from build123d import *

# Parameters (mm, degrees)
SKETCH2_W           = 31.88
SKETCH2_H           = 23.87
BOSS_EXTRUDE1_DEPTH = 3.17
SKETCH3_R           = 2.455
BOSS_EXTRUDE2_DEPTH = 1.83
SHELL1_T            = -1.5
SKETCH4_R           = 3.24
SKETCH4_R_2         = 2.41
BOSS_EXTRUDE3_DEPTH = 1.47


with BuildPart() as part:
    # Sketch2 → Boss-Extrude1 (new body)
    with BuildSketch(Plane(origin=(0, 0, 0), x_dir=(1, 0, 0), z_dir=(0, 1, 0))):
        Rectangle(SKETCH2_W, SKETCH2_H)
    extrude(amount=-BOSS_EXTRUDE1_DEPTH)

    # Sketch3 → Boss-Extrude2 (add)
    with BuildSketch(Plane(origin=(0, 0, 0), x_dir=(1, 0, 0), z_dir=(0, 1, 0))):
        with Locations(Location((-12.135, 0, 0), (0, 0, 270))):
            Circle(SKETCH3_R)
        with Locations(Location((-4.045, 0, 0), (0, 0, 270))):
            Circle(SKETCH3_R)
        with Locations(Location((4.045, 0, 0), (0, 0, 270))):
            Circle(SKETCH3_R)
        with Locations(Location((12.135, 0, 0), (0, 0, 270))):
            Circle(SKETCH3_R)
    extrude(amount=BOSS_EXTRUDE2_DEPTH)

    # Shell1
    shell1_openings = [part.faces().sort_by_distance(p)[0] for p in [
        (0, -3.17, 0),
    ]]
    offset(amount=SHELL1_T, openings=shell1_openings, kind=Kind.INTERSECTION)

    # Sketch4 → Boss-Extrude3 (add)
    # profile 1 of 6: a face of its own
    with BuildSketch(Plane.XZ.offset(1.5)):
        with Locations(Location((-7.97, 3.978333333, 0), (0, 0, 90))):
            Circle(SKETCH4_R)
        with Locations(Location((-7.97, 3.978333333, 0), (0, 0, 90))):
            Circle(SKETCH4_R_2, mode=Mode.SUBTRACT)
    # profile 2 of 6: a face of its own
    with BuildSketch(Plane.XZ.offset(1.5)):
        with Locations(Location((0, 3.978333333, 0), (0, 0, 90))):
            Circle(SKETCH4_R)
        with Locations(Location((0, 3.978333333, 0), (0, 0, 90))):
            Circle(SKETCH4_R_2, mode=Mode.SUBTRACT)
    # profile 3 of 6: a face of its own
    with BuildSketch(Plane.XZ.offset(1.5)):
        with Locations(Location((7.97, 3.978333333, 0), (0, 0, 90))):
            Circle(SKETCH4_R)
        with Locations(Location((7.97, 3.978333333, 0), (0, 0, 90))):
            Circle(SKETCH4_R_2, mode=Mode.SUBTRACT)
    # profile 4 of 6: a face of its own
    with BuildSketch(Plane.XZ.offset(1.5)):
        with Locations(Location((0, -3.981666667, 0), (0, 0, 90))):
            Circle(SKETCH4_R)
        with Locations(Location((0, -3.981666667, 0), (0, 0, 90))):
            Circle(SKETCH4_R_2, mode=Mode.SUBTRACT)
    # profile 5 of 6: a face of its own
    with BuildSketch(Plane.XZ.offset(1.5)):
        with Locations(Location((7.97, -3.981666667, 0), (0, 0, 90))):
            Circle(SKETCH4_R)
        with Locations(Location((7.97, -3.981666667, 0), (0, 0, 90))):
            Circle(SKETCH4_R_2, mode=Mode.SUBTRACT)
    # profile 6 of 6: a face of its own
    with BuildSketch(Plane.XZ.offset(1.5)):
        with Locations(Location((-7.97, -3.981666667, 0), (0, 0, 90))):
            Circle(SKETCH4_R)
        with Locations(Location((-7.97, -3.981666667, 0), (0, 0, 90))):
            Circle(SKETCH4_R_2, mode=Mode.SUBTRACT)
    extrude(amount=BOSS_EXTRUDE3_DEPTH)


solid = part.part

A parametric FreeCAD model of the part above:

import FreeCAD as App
import Part
import Sketcher

V = App.Vector
Q = App.Units.Quantity


def faces_at(feature, points):
    """Names of the faces that lie closest to the given points."""
    faces = feature.Shape.Faces
    near = lambda p: min(range(len(faces)), key=lambda i: faces[i].distToShape(Part.Vertex(*p))[0])
    return sorted({f"Face{near(p) + 1}" for p in points})

doc = App.newDocument("Part")
body = doc.addObject("PartDesign::Body", "Body")

# Sketch on XZ plane
sketch1 = body.newObject("Sketcher::SketchObject", "Sketch")
sketch1.AttachmentSupport = (doc.getObject("XZ_Plane"), [""])
sketch1.MapMode = "FlatFace"
sketch1.addGeometry(Part.LineSegment(V(-16, -12, 0), V(-16, 12, 0)), False)
sketch1.addGeometry(Part.LineSegment(V(-16, 12, 0), V(16, 12, 0)), False)
sketch1.addGeometry(Part.LineSegment(V(16, 12, 0), V(16, -12, 0)), False)
sketch1.addGeometry(Part.LineSegment(V(16, -12, 0), V(-16, -12, 0)), False)
sketch1.addConstraint(Sketcher.Constraint("Coincident", 0, 2, 1, 1))
sketch1.addConstraint(Sketcher.Constraint("Coincident", 1, 2, 2, 1))
sketch1.addConstraint(Sketcher.Constraint("Coincident", 2, 2, 3, 1))
sketch1.addConstraint(Sketcher.Constraint("Coincident", 3, 2, 0, 1))
sketch1.addConstraint(Sketcher.Constraint("Vertical", 0))
sketch1.addConstraint(Sketcher.Constraint("Horizontal", 1))
sketch1.addConstraint(Sketcher.Constraint("Vertical", 2))
sketch1.addConstraint(Sketcher.Constraint("Horizontal", 3))
sketch1.addConstraint(Sketcher.Constraint("Symmetric", 0, 2, 2, 2, -1, 1))
sketch1.addConstraint(Sketcher.Constraint("DistanceX", 1, 1, 1, 2, Q("31.88 mm")))
sketch1.addConstraint(Sketcher.Constraint("DistanceY", 0, 1, 0, 2, Q("23.87 mm")))
pad1 = body.newObject("PartDesign::Pad", "Pad")
pad1.Profile = sketch1
pad1.Length = 3.17

# Sketch on XZ plane
sketch2 = body.newObject("Sketcher::SketchObject", "Sketch001")
sketch2.AttachmentSupport = (doc.getObject("XZ_Plane"), [""])
sketch2.MapMode = "FlatFace"
sketch2.addGeometry(Part.Circle(V(-12.1, 0, 0), V(0, 0, 1), 2.5), False)
sketch2.addGeometry(Part.Circle(V(-4, 0, 0), V(0, 0, 1), 2.5), False)
sketch2.addGeometry(Part.Circle(V(4, 0, 0), V(0, 0, 1), 2.5), False)
sketch2.addGeometry(Part.Circle(V(12.1, 0, 0), V(0, 0, 1), 2.5), False)
sketch2.addConstraint(Sketcher.Constraint("Equal", 0, 1))
sketch2.addConstraint(Sketcher.Constraint("Equal", 1, 2))
sketch2.addConstraint(Sketcher.Constraint("Equal", 2, 3))
sketch2.addConstraint(Sketcher.Constraint("Symmetric", 1, 3, 2, 3, -1, 1))
sketch2.addConstraint(Sketcher.Constraint("Symmetric", 0, 3, 3, 3, -1, 1))
sketch2.addConstraint(Sketcher.Constraint("PointOnObject", 0, 3, -1))
sketch2.addConstraint(Sketcher.Constraint("PointOnObject", 1, 3, -1))
sketch2.addConstraint(Sketcher.Constraint("Diameter", 0, Q("4.91 mm")))
sketch2.addConstraint(Sketcher.Constraint("DistanceX", 0, 3, 1, 3, Q("8.09 mm")))
sketch2.addConstraint(Sketcher.Constraint("DistanceX", 1, 3, 2, 3, Q("8.09 mm")))
pad2 = body.newObject("PartDesign::Pad", "Pad001")
pad2.Profile = sketch2
pad2.Length = 1.83
pad2.Reversed = True
doc.recompute()

thickness = body.newObject("PartDesign::Thickness", "Thickness")
thickness.Base = (pad2, faces_at(pad2, [(0, -3.17, 0)]))
thickness.Value = 1.5
thickness.Reversed = True
thickness.Join = "Intersection"

# Sketch on XZ plane
sketch3 = body.newObject("Sketcher::SketchObject", "Sketch002")
sketch3.AttachmentSupport = (doc.getObject("XZ_Plane"), [""])
sketch3.MapMode = "FlatFace"
sketch3.AttachmentOffset = App.Placement(V(0, 0, 1.5), App.Rotation())
sketch3.addGeometry(Part.Circle(V(-8, 4, 0), V(0, 0, 1), 3.2), False)
sketch3.addGeometry(Part.Circle(V(-8, 4, 0), V(0, 0, 1), 2.4), False)
sketch3.addGeometry(Part.Circle(V(0, 4, 0), V(0, 0, 1), 3.2), False)
sketch3.addGeometry(Part.Circle(V(0, 4, 0), V(0, 0, 1), 2.4), False)
sketch3.addGeometry(Part.Circle(V(8, 4, 0), V(0, 0, 1), 3.2), False)
sketch3.addGeometry(Part.Circle(V(8, 4, 0), V(0, 0, 1), 2.4), False)
sketch3.addGeometry(Part.Circle(V(0, -4, 0), V(0, 0, 1), 3.2), False)
sketch3.addGeometry(Part.Circle(V(0, -4, 0), V(0, 0, 1), 2.4), False)
sketch3.addGeometry(Part.Circle(V(8, -4, 0), V(0, 0, 1), 3.2), False)
sketch3.addGeometry(Part.Circle(V(8, -4, 0), V(0, 0, 1), 2.4), False)
sketch3.addGeometry(Part.Circle(V(-8, -4, 0), V(0, 0, 1), 3.2), False)
sketch3.addGeometry(Part.Circle(V(-8, -4, 0), V(0, 0, 1), 2.4), False)
sketch3.addConstraint(Sketcher.Constraint("Coincident", 1, 3, 0, 3))
sketch3.addConstraint(Sketcher.Constraint("Coincident", 3, 3, 2, 3))
sketch3.addConstraint(Sketcher.Constraint("Coincident", 5, 3, 4, 3))
sketch3.addConstraint(Sketcher.Constraint("Coincident", 7, 3, 6, 3))
sketch3.addConstraint(Sketcher.Constraint("Coincident", 9, 3, 8, 3))
sketch3.addConstraint(Sketcher.Constraint("Coincident", 11, 3, 10, 3))
sketch3.addConstraint(Sketcher.Constraint("Equal", 0, 2))
sketch3.addConstraint(Sketcher.Constraint("Equal", 1, 3))
sketch3.addConstraint(Sketcher.Constraint("Equal", 2, 4))
sketch3.addConstraint(Sketcher.Constraint("Equal", 3, 5))
sketch3.addConstraint(Sketcher.Constraint("Equal", 4, 6))
sketch3.addConstraint(Sketcher.Constraint("Equal", 5, 7))
sketch3.addConstraint(Sketcher.Constraint("Equal", 6, 8))
sketch3.addConstraint(Sketcher.Constraint("Equal", 7, 9))
sketch3.addConstraint(Sketcher.Constraint("Equal", 8, 10))
sketch3.addConstraint(Sketcher.Constraint("Equal", 9, 11))
sketch3.addConstraint(Sketcher.Constraint("Symmetric", 0, 3, 4, 3, -2))
sketch3.addConstraint(Sketcher.Constraint("Symmetric", 8, 3, 10, 3, -2))
sketch3.addConstraint(Sketcher.Constraint("PointOnObject", 2, 3, -2))
sketch3.addConstraint(Sketcher.Constraint("PointOnObject", 6, 3, -2))
sketch3.addConstraint(Sketcher.Constraint("Horizontal", 1, 3, 2, 3))
sketch3.addConstraint(Sketcher.Constraint("Horizontal", 7, 3, 8, 3))
sketch3.addConstraint(Sketcher.Constraint("Vertical", 5, 3, 8, 3))
sketch3.addConstraint(Sketcher.Constraint("Diameter", 0, Q("6.48 mm")))
sketch3.addConstraint(Sketcher.Constraint("Diameter", 1, Q("4.82 mm")))
sketch3.addConstraint(Sketcher.Constraint("DistanceX", 0, 3, -1, 1, Q("7.97 mm")))
sketch3.addConstraint(Sketcher.Constraint("DistanceY", 6, 3, 2, 3, Q("7.96 mm")))
sketch3.addConstraint(Sketcher.Constraint("DistanceY", -1, 1, 0, 3, Q("3.978333 mm")))
pad3 = body.newObject("PartDesign::Pad", "Pad002")
pad3.Profile = sketch3
pad3.Length = 1.47

doc.recompute()
